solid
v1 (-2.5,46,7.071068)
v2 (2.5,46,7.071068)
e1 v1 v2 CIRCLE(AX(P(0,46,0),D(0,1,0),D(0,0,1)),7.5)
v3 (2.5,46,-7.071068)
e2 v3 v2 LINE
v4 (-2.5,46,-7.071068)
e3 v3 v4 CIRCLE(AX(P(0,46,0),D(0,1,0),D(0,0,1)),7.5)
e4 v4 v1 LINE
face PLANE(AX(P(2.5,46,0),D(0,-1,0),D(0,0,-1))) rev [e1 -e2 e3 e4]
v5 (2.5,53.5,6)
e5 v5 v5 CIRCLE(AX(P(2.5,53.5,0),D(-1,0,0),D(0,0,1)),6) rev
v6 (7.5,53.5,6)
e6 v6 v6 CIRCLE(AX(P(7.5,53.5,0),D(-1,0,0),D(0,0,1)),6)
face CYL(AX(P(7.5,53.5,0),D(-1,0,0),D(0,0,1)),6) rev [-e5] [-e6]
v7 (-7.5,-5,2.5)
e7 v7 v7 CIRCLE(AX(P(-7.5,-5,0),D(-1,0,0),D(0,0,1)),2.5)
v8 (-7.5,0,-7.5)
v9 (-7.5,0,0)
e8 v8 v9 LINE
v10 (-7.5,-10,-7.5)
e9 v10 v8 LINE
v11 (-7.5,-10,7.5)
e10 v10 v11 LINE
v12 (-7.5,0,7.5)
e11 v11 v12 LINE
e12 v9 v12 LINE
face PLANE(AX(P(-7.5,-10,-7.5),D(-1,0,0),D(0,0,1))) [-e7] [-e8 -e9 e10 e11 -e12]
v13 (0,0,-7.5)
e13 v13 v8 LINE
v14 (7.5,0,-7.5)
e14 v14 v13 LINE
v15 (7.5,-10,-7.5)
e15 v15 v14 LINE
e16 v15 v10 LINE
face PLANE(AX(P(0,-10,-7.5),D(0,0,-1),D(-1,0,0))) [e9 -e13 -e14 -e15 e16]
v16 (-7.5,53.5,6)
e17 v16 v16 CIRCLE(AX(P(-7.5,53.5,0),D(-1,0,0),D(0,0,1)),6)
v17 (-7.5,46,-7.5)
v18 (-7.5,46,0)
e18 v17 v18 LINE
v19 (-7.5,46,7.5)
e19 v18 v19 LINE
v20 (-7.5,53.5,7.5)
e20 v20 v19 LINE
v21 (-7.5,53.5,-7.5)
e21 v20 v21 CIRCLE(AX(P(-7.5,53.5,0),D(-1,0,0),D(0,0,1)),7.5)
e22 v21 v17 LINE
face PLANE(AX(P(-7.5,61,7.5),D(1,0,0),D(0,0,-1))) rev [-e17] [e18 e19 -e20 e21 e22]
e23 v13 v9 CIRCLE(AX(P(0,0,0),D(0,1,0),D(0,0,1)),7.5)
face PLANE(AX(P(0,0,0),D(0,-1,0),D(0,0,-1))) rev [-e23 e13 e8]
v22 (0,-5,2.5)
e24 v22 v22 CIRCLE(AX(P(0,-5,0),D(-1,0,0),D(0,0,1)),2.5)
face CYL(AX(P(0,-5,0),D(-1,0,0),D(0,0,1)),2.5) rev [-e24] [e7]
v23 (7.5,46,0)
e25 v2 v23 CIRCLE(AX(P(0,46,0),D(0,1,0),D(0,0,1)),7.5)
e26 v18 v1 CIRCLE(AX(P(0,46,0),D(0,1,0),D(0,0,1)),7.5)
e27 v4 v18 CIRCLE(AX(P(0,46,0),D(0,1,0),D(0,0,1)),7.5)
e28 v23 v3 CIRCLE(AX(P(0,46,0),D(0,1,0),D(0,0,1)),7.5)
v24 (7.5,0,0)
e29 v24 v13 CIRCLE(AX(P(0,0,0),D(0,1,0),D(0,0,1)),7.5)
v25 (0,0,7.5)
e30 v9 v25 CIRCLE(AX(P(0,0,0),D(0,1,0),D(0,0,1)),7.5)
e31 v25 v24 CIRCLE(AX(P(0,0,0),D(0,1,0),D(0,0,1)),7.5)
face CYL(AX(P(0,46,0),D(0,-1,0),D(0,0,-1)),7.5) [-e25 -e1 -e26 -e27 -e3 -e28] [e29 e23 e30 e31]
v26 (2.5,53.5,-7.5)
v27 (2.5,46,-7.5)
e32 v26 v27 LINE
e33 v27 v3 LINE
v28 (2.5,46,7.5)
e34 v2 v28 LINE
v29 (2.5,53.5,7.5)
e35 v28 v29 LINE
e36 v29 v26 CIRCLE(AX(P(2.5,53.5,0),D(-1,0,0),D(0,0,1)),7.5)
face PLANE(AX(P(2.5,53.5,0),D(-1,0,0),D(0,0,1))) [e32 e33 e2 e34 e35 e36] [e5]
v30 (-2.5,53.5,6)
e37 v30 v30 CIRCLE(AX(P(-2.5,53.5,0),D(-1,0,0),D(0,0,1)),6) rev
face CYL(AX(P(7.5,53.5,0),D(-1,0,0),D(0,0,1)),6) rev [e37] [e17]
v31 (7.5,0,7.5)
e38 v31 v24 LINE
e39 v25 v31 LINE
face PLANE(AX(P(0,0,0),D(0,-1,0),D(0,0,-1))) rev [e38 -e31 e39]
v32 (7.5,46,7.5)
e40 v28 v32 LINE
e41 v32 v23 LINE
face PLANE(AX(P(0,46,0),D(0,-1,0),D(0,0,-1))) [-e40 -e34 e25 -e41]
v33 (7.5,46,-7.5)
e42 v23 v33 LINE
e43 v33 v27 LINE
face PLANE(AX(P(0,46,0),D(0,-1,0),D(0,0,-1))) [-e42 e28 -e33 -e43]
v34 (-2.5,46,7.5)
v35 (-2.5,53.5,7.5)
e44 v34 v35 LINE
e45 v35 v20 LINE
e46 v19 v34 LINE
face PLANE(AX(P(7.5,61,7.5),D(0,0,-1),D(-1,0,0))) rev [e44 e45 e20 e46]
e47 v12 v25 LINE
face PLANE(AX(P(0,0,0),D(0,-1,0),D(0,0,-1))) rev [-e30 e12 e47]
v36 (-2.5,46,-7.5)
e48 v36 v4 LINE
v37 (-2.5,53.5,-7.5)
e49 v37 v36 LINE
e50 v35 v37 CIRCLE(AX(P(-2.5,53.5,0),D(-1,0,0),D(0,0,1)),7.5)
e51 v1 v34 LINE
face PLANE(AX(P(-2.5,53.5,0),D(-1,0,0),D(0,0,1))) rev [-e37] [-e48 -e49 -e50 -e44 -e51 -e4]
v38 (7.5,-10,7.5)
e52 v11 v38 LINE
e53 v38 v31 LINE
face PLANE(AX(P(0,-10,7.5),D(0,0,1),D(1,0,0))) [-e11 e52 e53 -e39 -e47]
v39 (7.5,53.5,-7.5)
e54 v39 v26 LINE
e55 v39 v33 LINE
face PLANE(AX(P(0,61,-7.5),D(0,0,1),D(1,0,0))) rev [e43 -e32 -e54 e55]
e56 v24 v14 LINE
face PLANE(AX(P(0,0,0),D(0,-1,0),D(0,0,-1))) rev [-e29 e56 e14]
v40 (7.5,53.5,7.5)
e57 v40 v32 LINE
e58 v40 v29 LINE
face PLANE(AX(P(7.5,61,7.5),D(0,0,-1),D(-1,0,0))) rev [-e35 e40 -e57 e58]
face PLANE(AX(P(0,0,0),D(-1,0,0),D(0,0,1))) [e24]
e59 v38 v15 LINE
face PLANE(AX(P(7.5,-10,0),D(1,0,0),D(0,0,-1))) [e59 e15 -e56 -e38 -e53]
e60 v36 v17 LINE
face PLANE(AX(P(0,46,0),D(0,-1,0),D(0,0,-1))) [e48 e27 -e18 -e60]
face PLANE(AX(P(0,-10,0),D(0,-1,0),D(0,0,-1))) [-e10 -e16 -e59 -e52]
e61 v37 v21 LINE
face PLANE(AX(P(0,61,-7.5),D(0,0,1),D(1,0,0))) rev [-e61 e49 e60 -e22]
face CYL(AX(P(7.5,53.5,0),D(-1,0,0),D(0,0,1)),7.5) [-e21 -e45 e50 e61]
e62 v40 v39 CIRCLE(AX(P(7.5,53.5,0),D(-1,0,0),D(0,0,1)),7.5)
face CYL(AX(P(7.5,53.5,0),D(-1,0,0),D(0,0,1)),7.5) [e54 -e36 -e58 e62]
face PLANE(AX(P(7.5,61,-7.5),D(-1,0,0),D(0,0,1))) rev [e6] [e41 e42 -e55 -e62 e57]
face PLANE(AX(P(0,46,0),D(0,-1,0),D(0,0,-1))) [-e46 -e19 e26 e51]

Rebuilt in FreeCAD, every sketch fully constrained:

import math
import FreeCAD as App
import Part
import Sketcher
Q = App.Units.Quantity

doc = App.newDocument("Part")
params = doc.addObject("Spreadsheet::Sheet", "Params")
for row, (alias, value) in enumerate([
    ("sketch1_diameter", "15 mm"),
    ("pad1_length", "46 mm"),
    ("sketch2_width", "15 mm"),
    ("pad2_length", "10 mm"),
    ("sketch3_diameter", "5 mm"),
    ("pocket1_length", "7.5 mm"),
    ("sketch4_width", "15 mm"),
    ("pad3_length", "15 mm"),
    ("sketch5_radius", "7.5 mm"),
    ("sketch6_diameter", "12 mm"),
    ("sketch7_diameter", "15 mm"),
    ("pocket4_length", "5 mm"),
    ("sketch8_radius", "6 mm"),
    ("sketch8_height", "15 mm"),
    ("sketch8_width", "7.5 mm"),
    ("pocket5_length", "5 mm"),
], start=1):
    params.set(f"A{row}", alias)
    params.set(f"B{row}", "=" + value)
    params.setAlias(f"B{row}", alias)

body = doc.addObject("PartDesign::Body", "Body")

sketch1 = body.newObject("Sketcher::SketchObject", "Sketch")
sketch1.AttachmentSupport = (doc.getObject("XZ_Plane"), [""])
sketch1.MapMode = "FlatFace"
sketch1.addGeometry(Part.Circle(App.Vector(0, 0, 0), App.Vector(0, 0, 1), 7.5), False)
sketch1.addConstraint([
    Sketcher.Constraint("Coincident", 0, 3, -1, 1),
    Sketcher.Constraint("Diameter", 0, Q("15 mm")),
])
sketch1.setExpression("Constraints[1]", "Params.sketch1_diameter")
pad1 = body.newObject("PartDesign::Pad", "Pad")
pad1.Profile = sketch1
pad1.setExpression("Length", "Params.pad1_length")
pad1.Reversed = True

sketch2 = body.newObject("Sketcher::SketchObject", "Sketch001")
sketch2.AttachmentSupport = (doc.getObject("XZ_Plane"), [""])
sketch2.MapMode = "FlatFace"
sketch2.addGeometry([
    Part.LineSegment(App.Vector(-7.5, 7.5, 0), App.Vector(-7.5, -7.5, 0)),
    Part.LineSegment(App.Vector(-7.5, -7.5, 0), App.Vector(7.5, -7.5, 0)),
    Part.LineSegment(App.Vector(7.5, -7.5, 0), App.Vector(7.5, 7.5, 0)),
    Part.LineSegment(App.Vector(7.5, 7.5, 0), App.Vector(-7.5, 7.5, 0)),
], False)
sketch2.addConstraint([
    Sketcher.Constraint("Coincident", 0, 2, 1, 1),
    Sketcher.Constraint("Coincident", 1, 2, 2, 1),
    Sketcher.Constraint("Coincident", 2, 2, 3, 1),
    Sketcher.Constraint("Coincident", 3, 2, 0, 1),
    Sketcher.Constraint("Vertical", 0),
    Sketcher.Constraint("Horizontal", 1),
    Sketcher.Constraint("Vertical", 2),
    Sketcher.Constraint("Horizontal", 3),
    Sketcher.Constraint("Symmetric", 0, 2, 2, 2, -1, 1),
    Sketcher.Constraint("Equal", 3, 0),
    Sketcher.Constraint("DistanceX", 1, 1, 1, 2, Q("15 mm")),
])
sketch2.setExpression("Constraints[10]", "Params.sketch2_width")
pad2 = body.newObject("PartDesign::Pad", "Pad001")
pad2.Profile = sketch2
pad2.setExpression("Length", "Params.pad2_length")

sketch3 = body.newObject("Sketcher::SketchObject", "Sketch002")
sketch3.AttachmentSupport = (doc.getObject("YZ_Plane"), [""])
sketch3.MapMode = "FlatFace"
sketch3.AttachmentOffset = App.Placement(App.Vector(0, 0, -7.5), App.Rotation())
sketch3.addGeometry(Part.Circle(App.Vector(-5, 0, 0), App.Vector(0, 0, 1), 2.5), False)
sketch3.addConstraint([
    Sketcher.Constraint("PointOnObject", 0, 3, -1),
    Sketcher.Constraint("Diameter", 0, Q("5 mm")),
    Sketcher.Constraint("DistanceX", 0, 3, -1, 1, Q("5 mm")),
])
sketch3.setExpression("Constraints[1]", "Params.sketch3_diameter")
pocket1 = body.newObject("PartDesign::Pocket", "Pocket")
pocket1.Profile = sketch3
pocket1.setExpression("Length", "Params.pocket1_length")
pocket1.Reversed = True

sketch4 = body.newObject("Sketcher::SketchObject", "Sketch003")
sketch4.AttachmentSupport = (doc.getObject("XZ_Plane"), [""])
sketch4.MapMode = "FlatFace"
sketch4.AttachmentOffset = App.Placement(App.Vector(0, 0, -46), App.Rotation())
sketch4.addGeometry([
    Part.LineSegment(App.Vector(7.5, -7.5, 0), App.Vector(-7.5, -7.5, 0)),
    Part.LineSegment(App.Vector(-7.5, -7.5, 0), App.Vector(-7.5, 7.5, 0)),
    Part.LineSegment(App.Vector(-7.5, 7.5, 0), App.Vector(7.5, 7.5, 0)),
    Part.LineSegment(App.Vector(7.5, 7.5, 0), App.Vector(7.5, -7.5, 0)),
], False)
sketch4.addConstraint([
    Sketcher.Constraint("Coincident", 0, 2, 1, 1),
    Sketcher.Constraint("Coincident", 1, 2, 2, 1),
    Sketcher.Constraint("Coincident", 2, 2, 3, 1),
    Sketcher.Constraint("Coincident", 3, 2, 0, 1),
    Sketcher.Constraint("Horizontal", 0),
    Sketcher.Constraint("Vertical", 1),
    Sketcher.Constraint("Horizontal", 2),
    Sketcher.Constraint("Vertical", 3),
    Sketcher.Constraint("Symmetric", 0, 2, 2, 2, -1, 1),
    Sketcher.Constraint("Equal", 2, 1),
    Sketcher.Constraint("DistanceX", 0, 2, 0, 1, Q("15 mm")),
])
sketch4.setExpression("Constraints[10]", "Params.sketch4_width")
pad3 = body.newObject("PartDesign::Pad", "Pad002")
pad3.Profile = sketch4
pad3.setExpression("Length", "Params.pad3_length")
pad3.Reversed = True

sketch5 = body.newObject("Sketcher::SketchObject", "Sketch004")
sketch5.AttachmentSupport = (doc.getObject("YZ_Plane"), [""])
sketch5.MapMode = "FlatFace"
sketch5.AttachmentOffset = App.Placement(App.Vector(0, 0, -7.5), App.Rotation())
sketch5.addGeometry([
    Part.ArcOfCircle(Part.Circle(App.Vector(53.5, 0, 0), App.Vector(0, 0, 1), 7.5), math.radians(-90), math.radians(0)),
    Part.LineSegment(App.Vector(61, 0, 0), App.Vector(61, -7.5, 0)),
    Part.LineSegment(App.Vector(61, -7.5, 0), App.Vector(53.5, -7.5, 0)),
    Part.LineSegment(App.Vector(61, 7.5, 0), App.Vector(61, 0, 0)),
    Part.ArcOfCircle(Part.Circle(App.Vector(53.5, 0, 0), App.Vector(0, 0, 1), 7.5), math.radians(0), math.radians(90)),
    Part.LineSegment(App.Vector(53.5, 7.5, 0), App.Vector(61, 7.5, 0)),
], False)
sketch5.addConstraint([
    Sketcher.Constraint("Tangent", 0, 2, 1, 1),
    Sketcher.Constraint("Coincident", 1, 2, 2, 1),
    Sketcher.Constraint("Tangent", 2, 2, 0, 1),
    Sketcher.Constraint("Tangent", 3, 2, 4, 1),
    Sketcher.Constraint("Tangent", 4, 2, 5, 1),
    Sketcher.Constraint("Coincident", 5, 2, 3, 1),
    Sketcher.Constraint("Vertical", 1),
    Sketcher.Constraint("Horizontal", 2),
    Sketcher.Constraint("Vertical", 3),
    Sketcher.Constraint("Horizontal", 5),
    Sketcher.Constraint("Coincident", 4, 3, 0, 3),
    Sketcher.Constraint("Equal", 0, 4),
    Sketcher.Constraint("PointOnObject", 0, 3, -1),
    Sketcher.Constraint("Radius", 0, Q("7.5 mm")),
    Sketcher.Constraint("DistanceX", -1, 1, 0, 2, Q("61 mm")),
])
sketch5.setExpression("Constraints[13]", "Params.sketch5_radius")
pocket2 = body.newObject("PartDesign::Pocket", "Pocket001")
pocket2.Profile = sketch5
pocket2.Type = "ThroughAll"
pocket2.Reversed = True

sketch6 = body.newObject("Sketcher::SketchObject", "Sketch005")
sketch6.AttachmentSupport = (doc.getObject("YZ_Plane"), [""])
sketch6.MapMode = "FlatFace"
sketch6.AttachmentOffset = App.Placement(App.Vector(0, 0, -7.5), App.Rotation())
sketch6.addGeometry(Part.Circle(App.Vector(53.5, 0, 0), App.Vector(0, 0, 1), 6), False)
sketch6.addConstraint([
    Sketcher.Constraint("PointOnObject", 0, 3, -1),
    Sketcher.Constraint("Diameter", 0, Q("12 mm")),
    Sketcher.Constraint("DistanceX", -1, 1, 0, 3, Q("53.5 mm")),
])
sketch6.setExpression("Constraints[1]", "Params.sketch6_diameter")
pocket3 = body.newObject("PartDesign::Pocket", "Pocket002")
pocket3.Profile = sketch6
pocket3.Type = "ThroughAll"
pocket3.Reversed = True

sketch7 = body.newObject("Sketcher::SketchObject", "Sketch006")
sketch7.AttachmentSupport = (doc.getObject("YZ_Plane"), [""])
sketch7.MapMode = "FlatFace"
sketch7.AttachmentOffset = App.Placement(App.Vector(0, 0, -2.5), App.Rotation())
sketch7.addGeometry(Part.Circle(App.Vector(53.5, 0, 0), App.Vector(0, 0, 1), 7.5), False)
sketch7.addConstraint([
    Sketcher.Constraint("PointOnObject", 0, 3, -1),
    Sketcher.Constraint("Diameter", 0, Q("15 mm")),
    Sketcher.Constraint("DistanceX", -1, 1, 0, 3, Q("53.5 mm")),
])
sketch7.setExpression("Constraints[1]", "Params.sketch7_diameter")
pocket4 = body.newObject("PartDesign::Pocket", "Pocket003")
pocket4.Profile = sketch7
pocket4.setExpression("Length", "Params.pocket4_length")
pocket4.Reversed = True

sketch8 = body.newObject("Sketcher::SketchObject", "Sketch007")
sketch8.AttachmentSupport = (doc.getObject("YZ_Plane"), [""])
sketch8.MapMode = "FlatFace"
sketch8.AttachmentOffset = App.Placement(App.Vector(0, 0, -2.5), App.Rotation())
sketch8.addGeometry([
    Part.LineSegment(App.Vector(53.5, -6, 0), App.Vector(53.5, -7.5, 0)),
    Part.LineSegment(App.Vector(53.5, -7.5, 0), App.Vector(46, -7.5, 0)),
    Part.LineSegment(App.Vector(46, -7.5, 0), App.Vector(46, 7.5, 0)),
    Part.LineSegment(App.Vector(46, 7.5, 0), App.Vector(53.5, 7.5, 0)),
    Part.LineSegment(App.Vector(53.5, 7.5, 0), App.Vector(53.5, 6, 0)),
    Part.ArcOfCircle(Part.Circle(App.Vector(53.5, 0, 0), App.Vector(0, 0, 1), 6), math.radians(90), math.radians(270)),
], False)
sketch8.addConstraint([
    Sketcher.Constraint("Coincident", 0, 2, 1, 1),
    Sketcher.Constraint("Coincident", 1, 2, 2, 1),
    Sketcher.Constraint("Coincident", 2, 2, 3, 1),
    Sketcher.Constraint("Coincident", 3, 2, 4, 1),
    Sketcher.Constraint("Coincident", 4, 2, 5, 1),
    Sketcher.Constraint("Coincident", 5, 2, 0, 1),
    Sketcher.Constraint("Vertical", 0),
    Sketcher.Constraint("Horizontal", 1),
    Sketcher.Constraint("Vertical", 2),
    Sketcher.Constraint("Horizontal", 3),
    Sketcher.Constraint("Vertical", 4),
    Sketcher.Constraint("Symmetric", 0, 2, 3, 2, -1),
    Sketcher.Constraint("PointOnObject", 5, 3, -1),
    Sketcher.Constraint("Vertical", 5, 3, 0, 2),
    Sketcher.Constraint("Radius", 5, Q("6 mm")),
    Sketcher.Constraint("DistanceY", 2, 1, 2, 2, Q("15 mm")),
    Sketcher.Constraint("DistanceX", 1, 2, 1, 1, Q("7.5 mm")),
    Sketcher.Constraint("DistanceX", -1, 1, 1, 2, Q("46 mm")),
])
sketch8.setExpression("Constraints[14]", "Params.sketch8_radius")
sketch8.setExpression("Constraints[15]", "Params.sketch8_height")
sketch8.setExpression("Constraints[16]", "Params.sketch8_width")
pocket5 = body.newObject("PartDesign::Pocket", "Pocket004")
pocket5.Profile = sketch8
pocket5.setExpression("Length", "Params.pocket5_length")
pocket5.Reversed = True

doc.recompute()
